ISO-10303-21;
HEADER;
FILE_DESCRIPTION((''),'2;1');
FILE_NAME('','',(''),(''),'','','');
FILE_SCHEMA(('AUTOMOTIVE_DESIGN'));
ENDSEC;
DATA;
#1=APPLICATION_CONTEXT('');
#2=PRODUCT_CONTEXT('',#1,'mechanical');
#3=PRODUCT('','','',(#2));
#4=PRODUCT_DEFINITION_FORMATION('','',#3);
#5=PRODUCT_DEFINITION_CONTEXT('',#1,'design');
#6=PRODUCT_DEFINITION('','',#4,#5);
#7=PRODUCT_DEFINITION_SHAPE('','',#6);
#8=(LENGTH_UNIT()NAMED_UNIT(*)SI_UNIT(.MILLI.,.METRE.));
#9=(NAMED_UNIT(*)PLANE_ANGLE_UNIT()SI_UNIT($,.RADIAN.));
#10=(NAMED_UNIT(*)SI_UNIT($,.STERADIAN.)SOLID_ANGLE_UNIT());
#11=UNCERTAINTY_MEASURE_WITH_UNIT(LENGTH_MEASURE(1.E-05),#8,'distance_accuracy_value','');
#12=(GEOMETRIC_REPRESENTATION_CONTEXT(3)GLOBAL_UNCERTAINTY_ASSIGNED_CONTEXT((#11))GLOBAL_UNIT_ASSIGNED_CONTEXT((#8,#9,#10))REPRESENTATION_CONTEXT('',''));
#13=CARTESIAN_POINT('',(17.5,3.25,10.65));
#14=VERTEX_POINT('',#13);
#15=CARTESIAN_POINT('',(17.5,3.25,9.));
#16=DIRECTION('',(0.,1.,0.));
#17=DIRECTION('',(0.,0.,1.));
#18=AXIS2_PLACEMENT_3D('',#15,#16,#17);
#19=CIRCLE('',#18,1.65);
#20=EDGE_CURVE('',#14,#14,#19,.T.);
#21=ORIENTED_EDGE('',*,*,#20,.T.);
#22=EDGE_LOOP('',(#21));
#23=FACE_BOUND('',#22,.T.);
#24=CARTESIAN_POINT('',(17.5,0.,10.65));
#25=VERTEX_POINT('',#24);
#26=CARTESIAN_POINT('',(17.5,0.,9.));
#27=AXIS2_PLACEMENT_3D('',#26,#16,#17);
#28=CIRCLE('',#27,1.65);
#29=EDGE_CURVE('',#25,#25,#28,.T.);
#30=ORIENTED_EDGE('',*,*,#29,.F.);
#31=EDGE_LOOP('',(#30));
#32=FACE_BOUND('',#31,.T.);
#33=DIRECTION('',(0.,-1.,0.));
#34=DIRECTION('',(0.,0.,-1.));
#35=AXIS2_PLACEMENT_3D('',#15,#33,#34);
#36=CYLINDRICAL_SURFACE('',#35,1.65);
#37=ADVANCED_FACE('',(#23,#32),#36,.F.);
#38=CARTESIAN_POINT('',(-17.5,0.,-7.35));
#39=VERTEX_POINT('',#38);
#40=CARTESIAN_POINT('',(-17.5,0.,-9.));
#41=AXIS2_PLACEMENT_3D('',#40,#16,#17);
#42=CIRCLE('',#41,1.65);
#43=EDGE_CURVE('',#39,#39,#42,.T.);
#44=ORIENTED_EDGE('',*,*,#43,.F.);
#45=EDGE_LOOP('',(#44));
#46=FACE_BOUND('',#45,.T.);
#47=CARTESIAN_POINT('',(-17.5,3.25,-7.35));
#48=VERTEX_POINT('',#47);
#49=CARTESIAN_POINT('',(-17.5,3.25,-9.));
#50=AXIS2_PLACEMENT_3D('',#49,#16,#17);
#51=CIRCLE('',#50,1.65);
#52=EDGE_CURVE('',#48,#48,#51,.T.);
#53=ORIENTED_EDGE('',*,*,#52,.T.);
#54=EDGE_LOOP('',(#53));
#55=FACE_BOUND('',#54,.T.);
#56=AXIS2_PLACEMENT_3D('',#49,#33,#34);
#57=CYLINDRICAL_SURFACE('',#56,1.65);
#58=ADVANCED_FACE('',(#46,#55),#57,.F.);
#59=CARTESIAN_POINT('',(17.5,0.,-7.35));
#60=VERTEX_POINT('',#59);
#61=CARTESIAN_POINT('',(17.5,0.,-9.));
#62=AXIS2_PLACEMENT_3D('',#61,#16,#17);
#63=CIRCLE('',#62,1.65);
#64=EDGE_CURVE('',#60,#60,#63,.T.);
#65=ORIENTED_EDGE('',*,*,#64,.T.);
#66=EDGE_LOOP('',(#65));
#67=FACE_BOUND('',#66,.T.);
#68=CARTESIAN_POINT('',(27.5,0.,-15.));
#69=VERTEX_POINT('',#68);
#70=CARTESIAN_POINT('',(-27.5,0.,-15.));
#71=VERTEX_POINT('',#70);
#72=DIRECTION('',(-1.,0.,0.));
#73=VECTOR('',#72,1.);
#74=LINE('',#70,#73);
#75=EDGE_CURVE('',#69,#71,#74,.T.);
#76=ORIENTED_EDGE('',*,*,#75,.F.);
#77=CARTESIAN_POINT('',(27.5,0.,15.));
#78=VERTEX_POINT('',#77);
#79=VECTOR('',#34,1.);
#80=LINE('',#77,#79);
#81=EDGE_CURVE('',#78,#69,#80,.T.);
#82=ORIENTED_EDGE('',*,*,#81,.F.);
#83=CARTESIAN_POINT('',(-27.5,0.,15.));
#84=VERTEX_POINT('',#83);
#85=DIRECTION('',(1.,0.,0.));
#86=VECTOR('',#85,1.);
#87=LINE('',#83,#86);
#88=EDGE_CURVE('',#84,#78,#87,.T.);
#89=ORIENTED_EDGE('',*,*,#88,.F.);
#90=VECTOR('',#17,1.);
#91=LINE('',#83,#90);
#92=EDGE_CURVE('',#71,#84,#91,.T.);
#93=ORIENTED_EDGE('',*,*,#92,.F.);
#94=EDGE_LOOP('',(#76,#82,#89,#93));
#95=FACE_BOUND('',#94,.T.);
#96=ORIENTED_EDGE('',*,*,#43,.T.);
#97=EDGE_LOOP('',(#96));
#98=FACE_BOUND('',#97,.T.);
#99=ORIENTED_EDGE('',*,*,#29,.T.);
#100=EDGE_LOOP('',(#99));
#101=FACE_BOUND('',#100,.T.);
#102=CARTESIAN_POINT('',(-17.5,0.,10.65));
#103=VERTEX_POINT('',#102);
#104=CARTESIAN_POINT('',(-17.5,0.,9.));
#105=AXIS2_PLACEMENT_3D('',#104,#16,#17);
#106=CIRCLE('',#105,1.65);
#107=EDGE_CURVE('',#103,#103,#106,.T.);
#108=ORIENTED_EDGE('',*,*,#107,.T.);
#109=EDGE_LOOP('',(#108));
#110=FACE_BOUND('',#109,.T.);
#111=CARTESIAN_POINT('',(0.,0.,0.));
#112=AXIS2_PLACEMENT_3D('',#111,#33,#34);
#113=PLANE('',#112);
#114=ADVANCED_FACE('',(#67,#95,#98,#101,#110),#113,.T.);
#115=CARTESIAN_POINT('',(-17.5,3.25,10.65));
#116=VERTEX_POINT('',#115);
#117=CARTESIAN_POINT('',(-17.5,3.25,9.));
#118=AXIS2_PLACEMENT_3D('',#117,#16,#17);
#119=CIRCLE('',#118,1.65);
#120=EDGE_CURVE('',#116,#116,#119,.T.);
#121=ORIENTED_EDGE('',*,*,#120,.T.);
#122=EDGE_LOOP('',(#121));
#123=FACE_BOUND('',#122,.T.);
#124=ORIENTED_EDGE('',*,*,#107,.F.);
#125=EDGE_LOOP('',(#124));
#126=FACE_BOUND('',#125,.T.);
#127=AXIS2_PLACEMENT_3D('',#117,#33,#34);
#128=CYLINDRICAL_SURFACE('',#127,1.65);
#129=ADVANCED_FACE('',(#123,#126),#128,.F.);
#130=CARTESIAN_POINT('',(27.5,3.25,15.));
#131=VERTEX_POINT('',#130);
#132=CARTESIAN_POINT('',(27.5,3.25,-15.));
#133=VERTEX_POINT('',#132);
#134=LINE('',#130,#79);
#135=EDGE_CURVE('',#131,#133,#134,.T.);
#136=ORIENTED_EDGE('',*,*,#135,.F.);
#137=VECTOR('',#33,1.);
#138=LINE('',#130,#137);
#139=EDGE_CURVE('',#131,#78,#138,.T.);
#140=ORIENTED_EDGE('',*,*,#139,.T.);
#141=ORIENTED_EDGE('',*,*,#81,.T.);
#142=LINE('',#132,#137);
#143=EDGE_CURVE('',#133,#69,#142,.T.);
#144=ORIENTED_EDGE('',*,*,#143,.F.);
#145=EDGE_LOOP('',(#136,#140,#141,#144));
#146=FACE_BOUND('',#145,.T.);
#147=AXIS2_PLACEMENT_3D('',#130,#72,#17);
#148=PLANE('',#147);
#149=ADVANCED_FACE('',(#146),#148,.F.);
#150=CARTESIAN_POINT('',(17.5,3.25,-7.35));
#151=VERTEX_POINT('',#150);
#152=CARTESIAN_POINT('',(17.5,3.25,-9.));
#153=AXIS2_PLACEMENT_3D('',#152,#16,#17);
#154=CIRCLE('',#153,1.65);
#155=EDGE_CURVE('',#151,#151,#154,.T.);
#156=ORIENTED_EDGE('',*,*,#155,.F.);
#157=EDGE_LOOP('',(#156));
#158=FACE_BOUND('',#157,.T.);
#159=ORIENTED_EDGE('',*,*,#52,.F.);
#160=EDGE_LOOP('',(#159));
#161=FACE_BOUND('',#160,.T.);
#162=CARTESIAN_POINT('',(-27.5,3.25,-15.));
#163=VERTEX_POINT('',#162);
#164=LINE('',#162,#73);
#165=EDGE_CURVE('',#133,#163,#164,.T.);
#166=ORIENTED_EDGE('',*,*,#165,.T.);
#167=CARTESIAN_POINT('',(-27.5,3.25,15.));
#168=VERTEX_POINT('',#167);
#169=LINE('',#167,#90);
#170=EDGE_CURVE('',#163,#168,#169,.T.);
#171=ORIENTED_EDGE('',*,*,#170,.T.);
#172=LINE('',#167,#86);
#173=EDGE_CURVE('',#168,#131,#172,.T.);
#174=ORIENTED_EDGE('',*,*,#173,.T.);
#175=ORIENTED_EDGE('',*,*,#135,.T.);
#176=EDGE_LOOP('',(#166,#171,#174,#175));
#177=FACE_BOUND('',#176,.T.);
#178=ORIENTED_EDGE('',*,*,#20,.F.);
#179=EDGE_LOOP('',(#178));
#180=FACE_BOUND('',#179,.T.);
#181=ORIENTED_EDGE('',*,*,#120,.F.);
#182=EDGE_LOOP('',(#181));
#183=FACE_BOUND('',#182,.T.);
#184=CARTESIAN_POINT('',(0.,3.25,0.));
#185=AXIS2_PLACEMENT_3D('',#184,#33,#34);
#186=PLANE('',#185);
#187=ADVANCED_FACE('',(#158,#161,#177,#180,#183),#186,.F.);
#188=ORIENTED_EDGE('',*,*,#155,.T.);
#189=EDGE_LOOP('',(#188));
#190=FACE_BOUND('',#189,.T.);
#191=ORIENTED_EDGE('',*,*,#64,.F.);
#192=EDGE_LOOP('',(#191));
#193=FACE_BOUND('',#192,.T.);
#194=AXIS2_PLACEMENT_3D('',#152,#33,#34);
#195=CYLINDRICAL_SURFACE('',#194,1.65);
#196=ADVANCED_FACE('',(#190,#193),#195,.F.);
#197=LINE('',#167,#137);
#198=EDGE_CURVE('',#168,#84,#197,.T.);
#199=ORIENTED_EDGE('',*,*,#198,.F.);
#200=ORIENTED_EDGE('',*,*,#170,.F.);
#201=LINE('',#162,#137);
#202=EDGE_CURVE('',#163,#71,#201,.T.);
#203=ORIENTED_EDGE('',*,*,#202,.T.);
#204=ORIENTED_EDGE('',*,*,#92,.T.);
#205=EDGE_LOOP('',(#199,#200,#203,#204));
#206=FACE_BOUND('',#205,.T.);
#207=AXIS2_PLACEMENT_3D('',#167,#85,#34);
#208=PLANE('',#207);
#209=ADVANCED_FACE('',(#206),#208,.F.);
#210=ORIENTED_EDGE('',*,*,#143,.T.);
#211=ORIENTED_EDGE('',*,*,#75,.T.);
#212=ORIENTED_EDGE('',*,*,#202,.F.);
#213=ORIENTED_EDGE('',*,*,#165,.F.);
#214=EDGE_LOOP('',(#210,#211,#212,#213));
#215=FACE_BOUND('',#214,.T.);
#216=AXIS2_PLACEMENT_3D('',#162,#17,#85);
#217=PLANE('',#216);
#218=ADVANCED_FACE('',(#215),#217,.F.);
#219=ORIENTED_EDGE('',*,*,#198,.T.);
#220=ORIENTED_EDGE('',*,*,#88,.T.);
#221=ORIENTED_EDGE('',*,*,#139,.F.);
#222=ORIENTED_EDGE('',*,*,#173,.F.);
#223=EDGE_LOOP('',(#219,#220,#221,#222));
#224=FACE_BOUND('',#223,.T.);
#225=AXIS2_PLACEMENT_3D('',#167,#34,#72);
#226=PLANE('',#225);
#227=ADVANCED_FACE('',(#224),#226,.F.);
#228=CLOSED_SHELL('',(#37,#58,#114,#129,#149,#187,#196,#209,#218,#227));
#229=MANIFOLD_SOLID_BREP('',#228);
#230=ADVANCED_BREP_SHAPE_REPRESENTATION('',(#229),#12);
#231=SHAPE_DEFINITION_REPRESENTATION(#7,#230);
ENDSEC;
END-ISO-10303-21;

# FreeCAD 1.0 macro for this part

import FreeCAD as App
import Part
import Sketcher

V = App.Vector

doc = App.newDocument("Part")
body = doc.addObject("PartDesign::Body", "Body")

# Sketch on XZ plane
sketch1 = doc.addObject("Sketcher::SketchObject", "Sketch")
body.addObject(sketch1)
sketch1.AttachmentSupport = (doc.XZ_Plane, [""])
sketch1.MapMode = "FlatFace"
sketch1.addGeometry(Part.LineSegment(V(-27.5, -15, 0), V(-27.5, 15, 0)), False)
sketch1.addGeometry(Part.LineSegment(V(-27.5, 15, 0), V(27.5, 15, 0)), False)
sketch1.addGeometry(Part.LineSegment(V(27.5, 15, 0), V(27.5, -15, 0)), False)
sketch1.addGeometry(Part.LineSegment(V(27.5, -15, 0), V(-27.5, -15, 0)), False)
sketch1.addGeometry(Part.Circle(V(-17.5, 9, 0), V(0, 0, 1), 1.6), False)
sketch1.addGeometry(Part.Circle(V(17.5, 9, 0), V(0, 0, 1), 1.6), False)
sketch1.addGeometry(Part.Circle(V(-17.5, -9, 0), V(0, 0, 1), 1.6), False)
sketch1.addGeometry(Part.Circle(V(17.5, -9, 0), V(0, 0, 1), 1.6), False)
sketch1.addConstraint(Sketcher.Constraint("Coincident", 0, 2, 1, 1))
sketch1.addConstraint(Sketcher.Constraint("Coincident", 1, 2, 2, 1))
sketch1.addConstraint(Sketcher.Constraint("Coincident", 2, 2, 3, 1))
sketch1.addConstraint(Sketcher.Constraint("Coincident", 3, 2, 0, 1))
sketch1.addConstraint(Sketcher.Constraint("Vertical", 0))
sketch1.addConstraint(Sketcher.Constraint("Horizontal", 1))
sketch1.addConstraint(Sketcher.Constraint("Vertical", 2))
sketch1.addConstraint(Sketcher.Constraint("Horizontal", 3))
sketch1.addConstraint(Sketcher.Constraint("Equal", 4, 5))
sketch1.addConstraint(Sketcher.Constraint("Equal", 5, 6))
sketch1.addConstraint(Sketcher.Constraint("Equal", 6, 7))
sketch1.addConstraint(Sketcher.Constraint("Symmetric", 5, 3, 6, 3, -1, 1))
sketch1.addConstraint(Sketcher.Constraint("Symmetric", 4, 3, 7, 3, -1, 1))
sketch1.addConstraint(Sketcher.Constraint("Symmetric", 0, 2, 2, 2, -1, 1))
sketch1.addConstraint(Sketcher.Constraint("Symmetric", 4, 3, 5, 3, -2))
sketch1.addConstraint(Sketcher.Constraint("Diameter", 4, 3.3))
sketch1.addConstraint(Sketcher.Constraint("DistanceX", 1, 1, 1, 2, 55.0))
sketch1.addConstraint(Sketcher.Constraint("DistanceY", 0, 1, 0, 2, 30.0))
sketch1.addConstraint(Sketcher.Constraint("DistanceY", -1, 1, 4, 3, 9.0))
sketch1.addConstraint(Sketcher.Constraint("DistanceX", 4, 3, 5, 3, 35.0))
pad1 = doc.addObject("PartDesign::Pad", "Pad")
body.addObject(pad1)
pad1.Profile = sketch1
pad1.Length = 3.25
pad1.Reversed = True

doc.recompute()
